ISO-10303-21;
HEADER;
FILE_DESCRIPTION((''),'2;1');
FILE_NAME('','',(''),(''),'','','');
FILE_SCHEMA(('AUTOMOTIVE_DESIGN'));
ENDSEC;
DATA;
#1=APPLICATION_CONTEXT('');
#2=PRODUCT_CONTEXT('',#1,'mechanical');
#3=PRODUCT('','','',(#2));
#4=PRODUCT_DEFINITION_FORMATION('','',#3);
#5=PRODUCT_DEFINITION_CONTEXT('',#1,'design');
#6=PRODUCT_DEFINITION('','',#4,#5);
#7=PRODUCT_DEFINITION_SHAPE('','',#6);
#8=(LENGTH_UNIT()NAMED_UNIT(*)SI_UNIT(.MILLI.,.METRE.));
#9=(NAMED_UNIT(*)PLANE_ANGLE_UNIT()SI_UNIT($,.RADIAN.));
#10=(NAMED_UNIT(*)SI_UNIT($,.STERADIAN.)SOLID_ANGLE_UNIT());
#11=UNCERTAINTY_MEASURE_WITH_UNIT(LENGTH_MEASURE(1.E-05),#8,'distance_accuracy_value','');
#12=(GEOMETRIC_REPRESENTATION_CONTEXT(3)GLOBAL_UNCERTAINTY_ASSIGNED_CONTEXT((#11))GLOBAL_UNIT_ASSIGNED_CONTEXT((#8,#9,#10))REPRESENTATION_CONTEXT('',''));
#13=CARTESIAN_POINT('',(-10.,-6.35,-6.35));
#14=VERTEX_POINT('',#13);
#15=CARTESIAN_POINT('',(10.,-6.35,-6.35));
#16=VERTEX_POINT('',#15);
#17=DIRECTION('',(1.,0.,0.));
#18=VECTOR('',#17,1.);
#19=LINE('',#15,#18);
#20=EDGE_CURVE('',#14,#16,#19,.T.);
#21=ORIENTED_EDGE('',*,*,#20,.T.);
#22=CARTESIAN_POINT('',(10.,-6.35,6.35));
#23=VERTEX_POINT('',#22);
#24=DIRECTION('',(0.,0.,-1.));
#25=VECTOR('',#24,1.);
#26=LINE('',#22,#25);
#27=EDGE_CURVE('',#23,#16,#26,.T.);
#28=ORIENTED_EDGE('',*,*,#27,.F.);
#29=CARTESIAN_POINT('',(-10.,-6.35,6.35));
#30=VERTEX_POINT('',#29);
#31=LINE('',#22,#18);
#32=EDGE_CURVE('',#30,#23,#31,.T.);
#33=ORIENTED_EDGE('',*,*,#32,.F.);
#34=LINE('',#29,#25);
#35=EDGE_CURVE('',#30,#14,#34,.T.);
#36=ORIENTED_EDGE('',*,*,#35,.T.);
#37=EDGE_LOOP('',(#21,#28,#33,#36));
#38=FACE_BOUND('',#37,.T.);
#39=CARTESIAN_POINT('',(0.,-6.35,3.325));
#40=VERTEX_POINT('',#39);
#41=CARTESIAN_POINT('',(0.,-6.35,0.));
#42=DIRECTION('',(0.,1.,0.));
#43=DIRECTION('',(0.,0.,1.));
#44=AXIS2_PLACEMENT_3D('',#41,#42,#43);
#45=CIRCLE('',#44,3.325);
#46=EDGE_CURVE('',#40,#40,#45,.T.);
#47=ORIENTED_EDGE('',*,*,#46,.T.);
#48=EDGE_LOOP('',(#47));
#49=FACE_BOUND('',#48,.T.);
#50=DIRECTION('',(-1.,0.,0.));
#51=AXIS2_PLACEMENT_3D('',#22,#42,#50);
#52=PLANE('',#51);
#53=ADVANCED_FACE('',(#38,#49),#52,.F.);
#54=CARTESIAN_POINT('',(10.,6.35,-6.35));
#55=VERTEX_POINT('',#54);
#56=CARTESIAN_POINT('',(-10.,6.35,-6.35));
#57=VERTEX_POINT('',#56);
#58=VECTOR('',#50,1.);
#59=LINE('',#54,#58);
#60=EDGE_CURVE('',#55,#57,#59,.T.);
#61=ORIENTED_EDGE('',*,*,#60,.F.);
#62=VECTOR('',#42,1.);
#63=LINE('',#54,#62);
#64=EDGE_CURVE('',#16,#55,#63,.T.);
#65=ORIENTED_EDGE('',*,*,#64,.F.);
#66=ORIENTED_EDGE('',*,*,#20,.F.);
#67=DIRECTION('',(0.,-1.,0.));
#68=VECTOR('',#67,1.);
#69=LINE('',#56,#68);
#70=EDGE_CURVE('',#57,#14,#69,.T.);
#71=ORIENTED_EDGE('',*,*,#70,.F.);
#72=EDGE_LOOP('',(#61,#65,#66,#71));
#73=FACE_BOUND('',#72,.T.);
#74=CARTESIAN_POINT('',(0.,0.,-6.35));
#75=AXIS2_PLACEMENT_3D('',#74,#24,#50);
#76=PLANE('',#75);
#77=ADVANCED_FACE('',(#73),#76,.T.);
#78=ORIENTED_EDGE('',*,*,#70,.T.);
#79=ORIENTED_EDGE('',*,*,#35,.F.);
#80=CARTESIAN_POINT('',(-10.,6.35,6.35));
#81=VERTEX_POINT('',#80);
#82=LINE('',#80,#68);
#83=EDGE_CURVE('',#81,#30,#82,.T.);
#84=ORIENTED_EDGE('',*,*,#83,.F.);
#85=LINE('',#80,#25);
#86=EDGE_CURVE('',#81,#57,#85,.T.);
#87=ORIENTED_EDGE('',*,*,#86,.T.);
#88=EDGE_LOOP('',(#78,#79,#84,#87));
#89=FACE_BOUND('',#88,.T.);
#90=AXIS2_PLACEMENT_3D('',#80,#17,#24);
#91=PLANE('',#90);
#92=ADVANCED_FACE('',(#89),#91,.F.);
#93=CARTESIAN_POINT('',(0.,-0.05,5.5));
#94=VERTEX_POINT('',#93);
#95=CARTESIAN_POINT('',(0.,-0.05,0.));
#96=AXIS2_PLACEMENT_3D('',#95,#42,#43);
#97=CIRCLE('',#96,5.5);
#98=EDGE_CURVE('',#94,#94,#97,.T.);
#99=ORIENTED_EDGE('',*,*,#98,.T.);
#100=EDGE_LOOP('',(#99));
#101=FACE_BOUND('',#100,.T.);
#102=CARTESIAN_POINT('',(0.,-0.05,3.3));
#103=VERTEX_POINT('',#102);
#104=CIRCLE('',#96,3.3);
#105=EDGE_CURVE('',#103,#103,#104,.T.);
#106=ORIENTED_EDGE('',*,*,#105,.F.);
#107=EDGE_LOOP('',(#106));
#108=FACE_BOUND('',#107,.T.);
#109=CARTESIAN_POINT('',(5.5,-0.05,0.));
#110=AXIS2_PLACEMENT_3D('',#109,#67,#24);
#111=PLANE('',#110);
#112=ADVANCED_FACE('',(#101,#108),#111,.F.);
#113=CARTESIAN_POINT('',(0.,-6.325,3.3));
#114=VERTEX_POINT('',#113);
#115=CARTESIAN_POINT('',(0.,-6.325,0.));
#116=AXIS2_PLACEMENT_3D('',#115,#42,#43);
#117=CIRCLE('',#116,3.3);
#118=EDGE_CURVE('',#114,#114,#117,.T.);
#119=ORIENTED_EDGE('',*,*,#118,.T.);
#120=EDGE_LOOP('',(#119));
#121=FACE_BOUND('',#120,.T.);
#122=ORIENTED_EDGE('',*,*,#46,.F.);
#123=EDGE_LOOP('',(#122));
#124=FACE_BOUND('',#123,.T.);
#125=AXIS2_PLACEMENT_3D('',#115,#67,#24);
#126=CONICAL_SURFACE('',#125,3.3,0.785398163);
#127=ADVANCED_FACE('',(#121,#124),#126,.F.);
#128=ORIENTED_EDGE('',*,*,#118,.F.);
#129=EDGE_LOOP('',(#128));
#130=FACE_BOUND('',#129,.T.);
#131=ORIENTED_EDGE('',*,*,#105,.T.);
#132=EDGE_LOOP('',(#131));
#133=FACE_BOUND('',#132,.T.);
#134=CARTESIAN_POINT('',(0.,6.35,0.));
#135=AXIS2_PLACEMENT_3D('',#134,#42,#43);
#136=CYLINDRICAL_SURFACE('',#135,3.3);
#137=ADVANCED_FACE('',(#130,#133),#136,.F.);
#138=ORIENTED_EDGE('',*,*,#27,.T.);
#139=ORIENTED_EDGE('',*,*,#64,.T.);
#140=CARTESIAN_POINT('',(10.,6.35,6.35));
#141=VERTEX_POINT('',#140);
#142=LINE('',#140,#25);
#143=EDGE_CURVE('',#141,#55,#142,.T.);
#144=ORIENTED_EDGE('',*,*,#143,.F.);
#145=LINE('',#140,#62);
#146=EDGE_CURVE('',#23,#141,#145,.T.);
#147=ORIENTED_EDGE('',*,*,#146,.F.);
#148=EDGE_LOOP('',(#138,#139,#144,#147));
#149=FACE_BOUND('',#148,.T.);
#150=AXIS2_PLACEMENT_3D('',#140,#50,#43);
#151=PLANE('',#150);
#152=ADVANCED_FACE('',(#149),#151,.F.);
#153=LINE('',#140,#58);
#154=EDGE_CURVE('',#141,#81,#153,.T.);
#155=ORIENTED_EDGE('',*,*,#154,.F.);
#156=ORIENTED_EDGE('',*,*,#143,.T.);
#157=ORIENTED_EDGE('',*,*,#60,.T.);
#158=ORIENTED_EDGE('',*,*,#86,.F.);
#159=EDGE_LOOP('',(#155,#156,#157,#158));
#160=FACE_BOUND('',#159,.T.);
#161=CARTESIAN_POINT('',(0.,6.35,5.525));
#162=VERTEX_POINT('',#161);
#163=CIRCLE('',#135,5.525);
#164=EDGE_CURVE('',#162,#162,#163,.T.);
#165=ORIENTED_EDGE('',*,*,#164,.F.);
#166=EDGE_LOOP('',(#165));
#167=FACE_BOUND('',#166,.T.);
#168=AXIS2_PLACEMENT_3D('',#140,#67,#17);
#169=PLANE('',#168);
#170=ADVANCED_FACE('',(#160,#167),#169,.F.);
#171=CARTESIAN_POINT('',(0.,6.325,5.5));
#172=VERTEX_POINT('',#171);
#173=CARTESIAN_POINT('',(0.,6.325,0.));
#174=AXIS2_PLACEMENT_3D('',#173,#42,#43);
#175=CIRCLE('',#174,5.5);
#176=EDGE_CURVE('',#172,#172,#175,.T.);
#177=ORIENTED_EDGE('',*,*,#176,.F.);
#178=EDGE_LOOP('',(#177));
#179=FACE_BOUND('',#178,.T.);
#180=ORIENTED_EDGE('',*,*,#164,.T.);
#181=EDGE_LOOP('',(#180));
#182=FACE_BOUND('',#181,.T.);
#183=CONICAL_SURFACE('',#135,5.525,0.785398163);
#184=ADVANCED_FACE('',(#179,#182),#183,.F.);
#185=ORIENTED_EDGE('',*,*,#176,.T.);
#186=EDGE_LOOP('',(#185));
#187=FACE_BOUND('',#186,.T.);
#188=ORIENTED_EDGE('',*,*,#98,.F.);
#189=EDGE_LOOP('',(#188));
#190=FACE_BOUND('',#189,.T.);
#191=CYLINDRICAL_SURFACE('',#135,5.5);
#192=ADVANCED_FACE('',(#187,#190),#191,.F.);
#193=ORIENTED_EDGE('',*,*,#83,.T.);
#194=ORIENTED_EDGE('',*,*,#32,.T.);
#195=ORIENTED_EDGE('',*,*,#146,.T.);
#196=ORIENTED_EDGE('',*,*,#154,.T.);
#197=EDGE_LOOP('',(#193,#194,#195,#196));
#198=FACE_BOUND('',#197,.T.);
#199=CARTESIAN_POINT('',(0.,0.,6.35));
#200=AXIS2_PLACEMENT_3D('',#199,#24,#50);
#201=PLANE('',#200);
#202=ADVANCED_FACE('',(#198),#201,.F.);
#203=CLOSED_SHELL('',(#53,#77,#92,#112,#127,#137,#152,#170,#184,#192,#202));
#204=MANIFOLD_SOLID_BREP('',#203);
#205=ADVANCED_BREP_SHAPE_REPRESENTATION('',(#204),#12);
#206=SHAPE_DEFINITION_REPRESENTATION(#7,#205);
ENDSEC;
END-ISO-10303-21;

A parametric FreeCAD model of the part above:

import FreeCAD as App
import Part
import Sketcher
Q = App.Units.Quantity


def add_polygon(sketch, points):
    """Adds a closed chain of lines whose ends are joined by coincident constraints."""
    first, n = sketch.GeometryCount, len(points)
    for a, b in zip(points, points[1:] + points[:1]):
        sketch.addGeometry(Part.LineSegment(App.Vector(*a, 0), App.Vector(*b, 0)), False)
    for i in range(n):
        sketch.addConstraint(Sketcher.Constraint("Coincident", first + i, 2, first + (i + 1) % n, 1))

doc = App.newDocument("Part")
body = doc.addObject("PartDesign::Body", "Body")

sketch1 = doc.addObject("Sketcher::SketchObject", "Sketch")
body.addObject(sketch1)
sketch1.AttachmentSupport = (doc.XY_Plane, [""])
sketch1.MapMode = "FlatFace"
add_polygon(sketch1, [(-10, 6), (-10, -6), (10, -6), (10, 6)])
sketch1.addConstraint([
    Sketcher.Constraint("Vertical", 0),
    Sketcher.Constraint("Horizontal", 1),
    Sketcher.Constraint("Vertical", 2),
    Sketcher.Constraint("Horizontal", 3),
    Sketcher.Constraint("Symmetric", 0, 2, 2, 2, -1, 1),
    Sketcher.Constraint("DistanceX", 1, 1, 1, 2, Q("20 mm")),
    Sketcher.Constraint("DistanceY", 0, 2, 0, 1, Q("12.7 mm")),
])
pad1 = doc.addObject("PartDesign::Pad", "Pad")
body.addObject(pad1)
pad1.Profile = sketch1
pad1.Length = 12.7
pad1.Midplane = True

sketch2 = doc.addObject("Sketcher::SketchObject", "Sketch001")
body.addObject(sketch2)
sketch2.AttachmentSupport = (doc.YZ_Plane, [""])
sketch2.MapMode = "FlatFace"
add_polygon(sketch2, [(-6.35, 0), (6.35, 0), (6.35, 5.525), (6.325, 5.5), (-0.05, 5.5), (-0.05, 3.3), (-6.325, 3.3), (-6.35, 3.325)])
sketch2.addConstraint([
    Sketcher.Constraint("Horizontal", 0),
    Sketcher.Constraint("Vertical", 1),
    Sketcher.Constraint("Horizontal", 3),
    Sketcher.Constraint("Vertical", 4),
    Sketcher.Constraint("Horizontal", 5),
    Sketcher.Constraint("Vertical", 7),
    Sketcher.Constraint("Symmetric", 0, 2, 7, 2, -1, 1),
    Sketcher.Constraint("Perpendicular", 2, 6),
    Sketcher.Constraint("Equal", 2, 6),
    Sketcher.Constraint("Angle", 2, Q("-135 deg")),
    Sketcher.Constraint("DistanceX", 0, 1, 0, 2, Q("12.7 mm")),
    Sketcher.Constraint("DistanceY", 4, 2, 4, 1, Q("2.2 mm")),
    Sketcher.Constraint("DistanceY", -1, 1, 2, 2, Q("5.5 mm")),
    Sketcher.Constraint("DistanceX", 3, 2, 1, 2, Q("6.4 mm")),
    Sketcher.Constraint("DistanceX", 3, 2, 3, 1, Q("6.375 mm")),
])
groove = doc.addObject("PartDesign::Groove", "Groove")
body.addObject(groove)
groove.Profile = sketch2
groove.ReferenceAxis = (sketch2, ["H_Axis"])
groove.Angle = 360

doc.recompute()
